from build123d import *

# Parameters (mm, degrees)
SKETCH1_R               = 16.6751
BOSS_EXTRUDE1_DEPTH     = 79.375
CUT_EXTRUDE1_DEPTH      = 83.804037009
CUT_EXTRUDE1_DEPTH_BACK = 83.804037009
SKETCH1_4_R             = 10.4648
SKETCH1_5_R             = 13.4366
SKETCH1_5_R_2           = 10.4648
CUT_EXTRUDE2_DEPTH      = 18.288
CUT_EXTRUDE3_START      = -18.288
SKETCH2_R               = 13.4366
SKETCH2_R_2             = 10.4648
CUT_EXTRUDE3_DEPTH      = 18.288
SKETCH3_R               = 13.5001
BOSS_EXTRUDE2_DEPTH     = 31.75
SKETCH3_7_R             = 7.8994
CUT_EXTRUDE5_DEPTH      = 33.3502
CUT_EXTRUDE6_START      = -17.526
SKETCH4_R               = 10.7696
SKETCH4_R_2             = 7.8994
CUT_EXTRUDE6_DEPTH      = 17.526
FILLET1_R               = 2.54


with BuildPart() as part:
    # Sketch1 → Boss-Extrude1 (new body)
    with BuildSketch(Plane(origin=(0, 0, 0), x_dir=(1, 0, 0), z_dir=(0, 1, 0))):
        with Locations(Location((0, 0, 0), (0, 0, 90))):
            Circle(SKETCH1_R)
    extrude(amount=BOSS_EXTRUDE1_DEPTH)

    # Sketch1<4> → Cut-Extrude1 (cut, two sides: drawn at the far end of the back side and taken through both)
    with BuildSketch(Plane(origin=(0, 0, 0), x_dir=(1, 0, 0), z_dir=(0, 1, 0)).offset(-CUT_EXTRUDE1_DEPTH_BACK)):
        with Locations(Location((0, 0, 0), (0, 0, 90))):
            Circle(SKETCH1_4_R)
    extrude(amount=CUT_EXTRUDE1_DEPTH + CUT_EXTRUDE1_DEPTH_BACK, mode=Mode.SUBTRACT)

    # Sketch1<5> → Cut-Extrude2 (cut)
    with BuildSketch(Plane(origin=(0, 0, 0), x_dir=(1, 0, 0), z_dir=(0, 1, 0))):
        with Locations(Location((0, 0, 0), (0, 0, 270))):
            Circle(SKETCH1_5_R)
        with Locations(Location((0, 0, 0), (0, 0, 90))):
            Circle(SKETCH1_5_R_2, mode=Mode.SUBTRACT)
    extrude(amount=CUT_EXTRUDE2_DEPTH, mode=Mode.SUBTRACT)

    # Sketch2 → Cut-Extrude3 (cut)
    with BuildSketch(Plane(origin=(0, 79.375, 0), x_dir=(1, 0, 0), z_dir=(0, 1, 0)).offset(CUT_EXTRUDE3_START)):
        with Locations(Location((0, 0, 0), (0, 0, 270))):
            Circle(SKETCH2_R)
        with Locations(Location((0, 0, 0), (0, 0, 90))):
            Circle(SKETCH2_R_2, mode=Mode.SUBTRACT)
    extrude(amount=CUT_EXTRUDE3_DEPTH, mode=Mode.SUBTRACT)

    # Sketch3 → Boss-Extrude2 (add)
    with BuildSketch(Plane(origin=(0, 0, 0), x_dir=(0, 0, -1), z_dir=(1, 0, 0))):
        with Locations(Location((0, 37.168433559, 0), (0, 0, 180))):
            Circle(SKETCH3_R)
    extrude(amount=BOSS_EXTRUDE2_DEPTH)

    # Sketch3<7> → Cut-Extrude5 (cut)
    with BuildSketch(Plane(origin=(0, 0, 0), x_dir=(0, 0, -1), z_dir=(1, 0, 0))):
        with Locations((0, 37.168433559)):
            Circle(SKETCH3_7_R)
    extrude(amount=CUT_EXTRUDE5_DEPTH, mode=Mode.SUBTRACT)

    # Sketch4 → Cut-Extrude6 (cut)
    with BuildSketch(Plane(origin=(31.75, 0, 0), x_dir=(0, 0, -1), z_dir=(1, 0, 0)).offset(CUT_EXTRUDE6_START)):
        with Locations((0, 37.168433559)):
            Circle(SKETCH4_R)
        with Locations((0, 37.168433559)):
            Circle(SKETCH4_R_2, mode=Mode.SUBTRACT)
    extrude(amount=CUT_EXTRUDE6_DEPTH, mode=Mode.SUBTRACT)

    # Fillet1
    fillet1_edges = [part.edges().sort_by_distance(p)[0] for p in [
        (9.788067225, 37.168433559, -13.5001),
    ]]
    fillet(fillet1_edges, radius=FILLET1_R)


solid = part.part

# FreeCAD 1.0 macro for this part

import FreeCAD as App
import Part
import Sketcher
Q = App.Units.Quantity


def edges_at(feature, points):
    """Names of the edges that pass closest to the given points."""
    edges = feature.Shape.Edges
    near = lambda p: min(range(len(edges)), key=lambda i: edges[i].distToShape(Part.Vertex(*p))[0])
    return sorted({f"Edge{near(p) + 1}" for p in points})

doc = App.newDocument("Part")
params = doc.addObject("Spreadsheet::Sheet", "Params")
for row, (alias, value) in enumerate([
    ("sketch1_diameter", "1.313 in"),
    ("pad1_length", "3.125 in"),
    ("sketch2_diameter", "0.824 in"),
    ("sketch3_diameter", "1.058 in"),
    ("sketch3_diameter2", "0.824 in"),
    ("pocket2_length", "0.72 in"),
    ("sketch4_diameter", "1.058 in"),
    ("sketch4_diameter2", "0.824 in"),
    ("pocket3_length", "0.72 in"),
    ("sketch5_diameter", "1.063 in"),
    ("pad2_length", "1.25 in"),
    ("sketch6_diameter", "0.622 in"),
    ("pocket4_length", "1.313 in"),
    ("sketch7_diameter", "0.848 in"),
    ("sketch7_diameter2", "0.622 in"),
    ("pocket5_length", "0.69 in"),
    ("fillet_radius", "0.1 in"),
], start=1):
    params.set(f"A{row}", alias)
    params.set(f"B{row}", "=" + value)
    params.setAlias(f"B{row}", alias)

body = doc.addObject("PartDesign::Body", "Body")

# Sketch on XZ plane
sketch1 = body.newObject("Sketcher::SketchObject", "Sketch")
sketch1.AttachmentSupport = (doc.getObject("XZ_Plane"), [""])
sketch1.MapMode = "FlatFace"
sketch1.addGeometry(Part.Circle(App.Vector(0, 0, 0), App.Vector(0, 0, 1), 17), False)
sketch1.addConstraint([
    Sketcher.Constraint("Coincident", 0, 3, -1, 1),
    Sketcher.Constraint("Diameter", 0, Q("1.313 in")),
])
sketch1.setExpression("Constraints[1]", "Params.sketch1_diameter")
pad1 = body.newObject("PartDesign::Pad", "Pad")
pad1.Profile = sketch1
pad1.setExpression("Length", "Params.pad1_length")
pad1.Reversed = True

# Sketch on XZ plane
sketch2 = body.newObject("Sketcher::SketchObject", "Sketch001")
sketch2.AttachmentSupport = (doc.getObject("XZ_Plane"), [""])
sketch2.MapMode = "FlatFace"
sketch2.addGeometry(Part.Circle(App.Vector(0, 0, 0), App.Vector(0, 0, 1), 10), False)
sketch2.addConstraint([
    Sketcher.Constraint("Coincident", 0, 3, -1, 1),
    Sketcher.Constraint("Diameter", 0, Q("0.824 in")),
])
sketch2.setExpression("Constraints[1]", "Params.sketch2_diameter")
pocket1 = body.newObject("PartDesign::Pocket", "Pocket")
pocket1.Profile = sketch2
pocket1.Type = "ThroughAll"
pocket1.Midplane = True

# Sketch on XZ plane
sketch3 = body.newObject("Sketcher::SketchObject", "Sketch002")
sketch3.AttachmentSupport = (doc.getObject("XZ_Plane"), [""])
sketch3.MapMode = "FlatFace"
sketch3.addGeometry([
    Part.Circle(App.Vector(0, 0, 0), App.Vector(0, 0, 1), 13),
    Part.Circle(App.Vector(0, 0, 0), App.Vector(0, 0, 1), 10),
], False)
sketch3.addConstraint([
    Sketcher.Constraint("Coincident", 0, 3, -1, 1),
    Sketcher.Constraint("Coincident", 1, 3, -1, 1),
    Sketcher.Constraint("Diameter", 0, Q("1.058 in")),
    Sketcher.Constraint("Diameter", 1, Q("0.824 in")),
])
sketch3.setExpression("Constraints[2]", "Params.sketch3_diameter")
sketch3.setExpression("Constraints[3]", "Params.sketch3_diameter2")
pocket2 = body.newObject("PartDesign::Pocket", "Pocket001")
pocket2.Profile = sketch3
pocket2.setExpression("Length", "Params.pocket2_length")

# Sketch on XZ plane
sketch4 = body.newObject("Sketcher::SketchObject", "Sketch003")
sketch4.AttachmentSupport = (doc.getObject("XZ_Plane"), [""])
sketch4.MapMode = "FlatFace"
sketch4.AttachmentOffset = App.Placement(App.Vector(0, 0, -2.405 * 25.4), App.Rotation())
sketch4.addGeometry([
    Part.Circle(App.Vector(0, 0, 0), App.Vector(0, 0, 1), 13),
    Part.Circle(App.Vector(0, 0, 0), App.Vector(0, 0, 1), 10),
], False)
sketch4.addConstraint([
    Sketcher.Constraint("Coincident", 0, 3, -1, 1),
    Sketcher.Constraint("Coincident", 1, 3, -1, 1),
    Sketcher.Constraint("Diameter", 0, Q("1.058 in")),
    Sketcher.Constraint("Diameter", 1, Q("0.824 in")),
])
sketch4.setExpression("Constraints[2]", "Params.sketch4_diameter")
sketch4.setExpression("Constraints[3]", "Params.sketch4_diameter2")
pocket3 = body.newObject("PartDesign::Pocket", "Pocket002")
pocket3.Profile = sketch4
pocket3.setExpression("Length", "Params.pocket3_length")

# Sketch on YZ plane
sketch5 = body.newObject("Sketcher::SketchObject", "Sketch004")
sketch5.AttachmentSupport = (doc.getObject("YZ_Plane"), [""])
sketch5.MapMode = "FlatFace"
sketch5.addGeometry(Part.Circle(App.Vector(37, 0, 0), App.Vector(0, 0, 1), 14), False)
sketch5.addConstraint([
    Sketcher.Constraint("PointOnObject", 0, 3, -1),
    Sketcher.Constraint("Diameter", 0, Q("1.063 in")),
    Sketcher.Constraint("DistanceX", -1, 1, 0, 3, 37.168434),
])
sketch5.setExpression("Constraints[1]", "Params.sketch5_diameter")
pad2 = body.newObject("PartDesign::Pad", "Pad001")
pad2.Profile = sketch5
pad2.setExpression("Length", "Params.pad2_length")

# Sketch on YZ plane
sketch6 = body.newObject("Sketcher::SketchObject", "Sketch005")
sketch6.AttachmentSupport = (doc.getObject("YZ_Plane"), [""])
sketch6.MapMode = "FlatFace"
sketch6.addGeometry(Part.Circle(App.Vector(37, 0, 0), App.Vector(0, 0, 1), 8), False)
sketch6.addConstraint([
    Sketcher.Constraint("PointOnObject", 0, 3, -1),
    Sketcher.Constraint("Diameter", 0, Q("0.622 in")),
    Sketcher.Constraint("DistanceX", -1, 1, 0, 3, 37.168434),
])
sketch6.setExpression("Constraints[1]", "Params.sketch6_diameter")
pocket4 = body.newObject("PartDesign::Pocket", "Pocket003")
pocket4.Profile = sketch6
pocket4.setExpression("Length", "Params.pocket4_length")
pocket4.Reversed = True

# Sketch on YZ plane
sketch7 = body.newObject("Sketcher::SketchObject", "Sketch006")
sketch7.AttachmentSupport = (doc.getObject("YZ_Plane"), [""])
sketch7.MapMode = "FlatFace"
sketch7.AttachmentOffset = App.Placement(App.Vector(0, 0, 0.56 * 25.4), App.Rotation())
sketch7.addGeometry([
    Part.Circle(App.Vector(37, 0, 0), App.Vector(0, 0, 1), 11),
    Part.Circle(App.Vector(37, 0, 0), App.Vector(0, 0, 1), 8),
], False)
sketch7.addConstraint([
    Sketcher.Constraint("Coincident", 1, 3, 0, 3),
    Sketcher.Constraint("PointOnObject", 0, 3, -1),
    Sketcher.Constraint("Diameter", 0, Q("0.848 in")),
    Sketcher.Constraint("Diameter", 1, Q("0.622 in")),
    Sketcher.Constraint("DistanceX", -1, 1, 0, 3, 37.168434),
])
sketch7.setExpression("Constraints[2]", "Params.sketch7_diameter")
sketch7.setExpression("Constraints[3]", "Params.sketch7_diameter2")
pocket5 = body.newObject("PartDesign::Pocket", "Pocket004")
pocket5.Profile = sketch7
pocket5.setExpression("Length", "Params.pocket5_length")
pocket5.Reversed = True
doc.recompute()

fillet = body.newObject("PartDesign::Fillet", "Fillet")
fillet.Base = (pocket5, edges_at(pocket5, [(9.788, 37.168, -13.5)]))
fillet.setExpression("Radius", "Params.fillet_radius")

doc.recompute()
